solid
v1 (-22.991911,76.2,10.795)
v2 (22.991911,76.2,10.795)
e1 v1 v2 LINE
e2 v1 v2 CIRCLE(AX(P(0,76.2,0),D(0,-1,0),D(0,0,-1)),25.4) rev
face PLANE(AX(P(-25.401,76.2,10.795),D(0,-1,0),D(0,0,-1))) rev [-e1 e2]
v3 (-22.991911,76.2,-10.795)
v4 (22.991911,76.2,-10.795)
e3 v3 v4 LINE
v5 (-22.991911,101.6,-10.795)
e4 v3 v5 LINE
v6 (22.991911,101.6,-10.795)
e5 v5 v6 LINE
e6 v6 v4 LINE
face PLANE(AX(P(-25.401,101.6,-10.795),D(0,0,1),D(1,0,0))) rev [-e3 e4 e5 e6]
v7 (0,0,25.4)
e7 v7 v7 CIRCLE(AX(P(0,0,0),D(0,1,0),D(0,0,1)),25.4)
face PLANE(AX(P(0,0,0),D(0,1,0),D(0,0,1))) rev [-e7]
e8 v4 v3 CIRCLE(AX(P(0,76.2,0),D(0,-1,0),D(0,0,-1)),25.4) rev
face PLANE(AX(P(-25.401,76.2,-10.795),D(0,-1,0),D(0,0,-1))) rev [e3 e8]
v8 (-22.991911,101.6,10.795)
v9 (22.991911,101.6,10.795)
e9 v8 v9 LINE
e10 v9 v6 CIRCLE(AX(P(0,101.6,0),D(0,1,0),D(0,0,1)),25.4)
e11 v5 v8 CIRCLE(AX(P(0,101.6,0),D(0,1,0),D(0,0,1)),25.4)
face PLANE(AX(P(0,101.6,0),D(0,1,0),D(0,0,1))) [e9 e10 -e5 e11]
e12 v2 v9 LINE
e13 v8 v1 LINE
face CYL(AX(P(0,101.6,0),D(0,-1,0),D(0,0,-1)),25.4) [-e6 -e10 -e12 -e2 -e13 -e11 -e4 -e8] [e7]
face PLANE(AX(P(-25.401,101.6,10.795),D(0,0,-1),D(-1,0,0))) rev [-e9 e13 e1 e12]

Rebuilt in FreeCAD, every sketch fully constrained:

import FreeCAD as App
import Part
import Sketcher
from FreeCAD import Vector
Q = App.Units.Quantity


def add_polygon(sketch, points):
    """Adds a closed chain of lines whose ends are joined by coincident constraints."""
    first, n = sketch.GeometryCount, len(points)
    for a, b in zip(points, points[1:] + points[:1]):
        sketch.addGeometry(Part.LineSegment(App.Vector(*a, 0), App.Vector(*b, 0)), False)
    for i in range(n):
        sketch.addConstraint(Sketcher.Constraint("Coincident", first + i, 2, first + (i + 1) % n, 1))

doc = App.newDocument("Part")
body = doc.addObject("PartDesign::Body", "Body")

sketch1 = doc.addObject("Sketcher::SketchObject", "Sketch")
body.addObject(sketch1)
sketch1.AttachmentSupport = (doc.XZ_Plane, [""])
sketch1.MapMode = "FlatFace"
sketch1.addGeometry(Part.Circle(Vector(0, 0, 0), Vector(0, 0, 1), 25.4), False)
sketch1.addConstraint([
    Sketcher.Constraint("Coincident", 0, 3, -1, 1),
    Sketcher.Constraint("Diameter", 0, Q("2 in")),
])
pad1 = doc.addObject("PartDesign::Pad", "Pad")
body.addObject(pad1)
pad1.Profile = sketch1
pad1.Length = Q("4 in")
pad1.Reversed = True

sketch2 = doc.addObject("Sketcher::SketchObject", "Sketch001")
body.addObject(sketch2)
sketch2.AttachmentSupport = (doc.YZ_Plane, [""])
sketch2.MapMode = "FlatFace"
sketch2.AttachmentOffset = App.Placement(Vector(0, 0, 1 * 25.4), App.Rotation())
add_polygon(sketch2, [(101.6, 25.4), (76.2, 25.4), (76.2, 10.795), (101.6, 10.795)])
sketch2.addConstraint([
    Sketcher.Constraint("Horizontal", 0),
    Sketcher.Constraint("Vertical", 1),
    Sketcher.Constraint("Horizontal", 2),
    Sketcher.Constraint("Vertical", 3),
    Sketcher.Constraint("DistanceX", 0, 2, 0, 1, Q("1 in")),
    Sketcher.Constraint("DistanceX", -1, 1, 0, 2, Q("3 in")),
    Sketcher.Constraint("DistanceY", -1, 1, 0, 2, Q("1 in")),
    Sketcher.Constraint("DistanceY", 1, 2, 1, 1, Q("0.575 in")),
])
pocket1 = doc.addObject("PartDesign::Pocket", "Pocket")
body.addObject(pocket1)
pocket1.Profile = sketch2
pocket1.Type = "UpToFirst"

sketch3 = doc.addObject("Sketcher::SketchObject", "Sketch002")
body.addObject(sketch3)
sketch3.AttachmentSupport = (doc.YZ_Plane, [""])
sketch3.MapMode = "FlatFace"
sketch3.AttachmentOffset = App.Placement(Vector(0, 0, 1 * 25.4), App.Rotation())
add_polygon(sketch3, [(101.6, -10.795), (76.2, -10.795), (76.2, -25.4), (101.6, -25.4)])
sketch3.addConstraint([
    Sketcher.Constraint("Horizontal", 0),
    Sketcher.Constraint("Vertical", 1),
    Sketcher.Constraint("Horizontal", 2),
    Sketcher.Constraint("Vertical", 3),
    Sketcher.Constraint("DistanceX", 0, 2, 0, 1, Q("1 in")),
    Sketcher.Constraint("DistanceX", -1, 1, 0, 2, Q("3 in")),
    Sketcher.Constraint("DistanceY", 1, 2, -1, 1, Q("1 in")),
    Sketcher.Constraint("DistanceY", 1, 2, 1, 1, Q("0.575 in")),
])
pocket2 = doc.addObject("PartDesign::Pocket", "Pocket001")
body.addObject(pocket2)
pocket2.Profile = sketch3
pocket2.Type = "UpToFirst"

doc.recompute()
